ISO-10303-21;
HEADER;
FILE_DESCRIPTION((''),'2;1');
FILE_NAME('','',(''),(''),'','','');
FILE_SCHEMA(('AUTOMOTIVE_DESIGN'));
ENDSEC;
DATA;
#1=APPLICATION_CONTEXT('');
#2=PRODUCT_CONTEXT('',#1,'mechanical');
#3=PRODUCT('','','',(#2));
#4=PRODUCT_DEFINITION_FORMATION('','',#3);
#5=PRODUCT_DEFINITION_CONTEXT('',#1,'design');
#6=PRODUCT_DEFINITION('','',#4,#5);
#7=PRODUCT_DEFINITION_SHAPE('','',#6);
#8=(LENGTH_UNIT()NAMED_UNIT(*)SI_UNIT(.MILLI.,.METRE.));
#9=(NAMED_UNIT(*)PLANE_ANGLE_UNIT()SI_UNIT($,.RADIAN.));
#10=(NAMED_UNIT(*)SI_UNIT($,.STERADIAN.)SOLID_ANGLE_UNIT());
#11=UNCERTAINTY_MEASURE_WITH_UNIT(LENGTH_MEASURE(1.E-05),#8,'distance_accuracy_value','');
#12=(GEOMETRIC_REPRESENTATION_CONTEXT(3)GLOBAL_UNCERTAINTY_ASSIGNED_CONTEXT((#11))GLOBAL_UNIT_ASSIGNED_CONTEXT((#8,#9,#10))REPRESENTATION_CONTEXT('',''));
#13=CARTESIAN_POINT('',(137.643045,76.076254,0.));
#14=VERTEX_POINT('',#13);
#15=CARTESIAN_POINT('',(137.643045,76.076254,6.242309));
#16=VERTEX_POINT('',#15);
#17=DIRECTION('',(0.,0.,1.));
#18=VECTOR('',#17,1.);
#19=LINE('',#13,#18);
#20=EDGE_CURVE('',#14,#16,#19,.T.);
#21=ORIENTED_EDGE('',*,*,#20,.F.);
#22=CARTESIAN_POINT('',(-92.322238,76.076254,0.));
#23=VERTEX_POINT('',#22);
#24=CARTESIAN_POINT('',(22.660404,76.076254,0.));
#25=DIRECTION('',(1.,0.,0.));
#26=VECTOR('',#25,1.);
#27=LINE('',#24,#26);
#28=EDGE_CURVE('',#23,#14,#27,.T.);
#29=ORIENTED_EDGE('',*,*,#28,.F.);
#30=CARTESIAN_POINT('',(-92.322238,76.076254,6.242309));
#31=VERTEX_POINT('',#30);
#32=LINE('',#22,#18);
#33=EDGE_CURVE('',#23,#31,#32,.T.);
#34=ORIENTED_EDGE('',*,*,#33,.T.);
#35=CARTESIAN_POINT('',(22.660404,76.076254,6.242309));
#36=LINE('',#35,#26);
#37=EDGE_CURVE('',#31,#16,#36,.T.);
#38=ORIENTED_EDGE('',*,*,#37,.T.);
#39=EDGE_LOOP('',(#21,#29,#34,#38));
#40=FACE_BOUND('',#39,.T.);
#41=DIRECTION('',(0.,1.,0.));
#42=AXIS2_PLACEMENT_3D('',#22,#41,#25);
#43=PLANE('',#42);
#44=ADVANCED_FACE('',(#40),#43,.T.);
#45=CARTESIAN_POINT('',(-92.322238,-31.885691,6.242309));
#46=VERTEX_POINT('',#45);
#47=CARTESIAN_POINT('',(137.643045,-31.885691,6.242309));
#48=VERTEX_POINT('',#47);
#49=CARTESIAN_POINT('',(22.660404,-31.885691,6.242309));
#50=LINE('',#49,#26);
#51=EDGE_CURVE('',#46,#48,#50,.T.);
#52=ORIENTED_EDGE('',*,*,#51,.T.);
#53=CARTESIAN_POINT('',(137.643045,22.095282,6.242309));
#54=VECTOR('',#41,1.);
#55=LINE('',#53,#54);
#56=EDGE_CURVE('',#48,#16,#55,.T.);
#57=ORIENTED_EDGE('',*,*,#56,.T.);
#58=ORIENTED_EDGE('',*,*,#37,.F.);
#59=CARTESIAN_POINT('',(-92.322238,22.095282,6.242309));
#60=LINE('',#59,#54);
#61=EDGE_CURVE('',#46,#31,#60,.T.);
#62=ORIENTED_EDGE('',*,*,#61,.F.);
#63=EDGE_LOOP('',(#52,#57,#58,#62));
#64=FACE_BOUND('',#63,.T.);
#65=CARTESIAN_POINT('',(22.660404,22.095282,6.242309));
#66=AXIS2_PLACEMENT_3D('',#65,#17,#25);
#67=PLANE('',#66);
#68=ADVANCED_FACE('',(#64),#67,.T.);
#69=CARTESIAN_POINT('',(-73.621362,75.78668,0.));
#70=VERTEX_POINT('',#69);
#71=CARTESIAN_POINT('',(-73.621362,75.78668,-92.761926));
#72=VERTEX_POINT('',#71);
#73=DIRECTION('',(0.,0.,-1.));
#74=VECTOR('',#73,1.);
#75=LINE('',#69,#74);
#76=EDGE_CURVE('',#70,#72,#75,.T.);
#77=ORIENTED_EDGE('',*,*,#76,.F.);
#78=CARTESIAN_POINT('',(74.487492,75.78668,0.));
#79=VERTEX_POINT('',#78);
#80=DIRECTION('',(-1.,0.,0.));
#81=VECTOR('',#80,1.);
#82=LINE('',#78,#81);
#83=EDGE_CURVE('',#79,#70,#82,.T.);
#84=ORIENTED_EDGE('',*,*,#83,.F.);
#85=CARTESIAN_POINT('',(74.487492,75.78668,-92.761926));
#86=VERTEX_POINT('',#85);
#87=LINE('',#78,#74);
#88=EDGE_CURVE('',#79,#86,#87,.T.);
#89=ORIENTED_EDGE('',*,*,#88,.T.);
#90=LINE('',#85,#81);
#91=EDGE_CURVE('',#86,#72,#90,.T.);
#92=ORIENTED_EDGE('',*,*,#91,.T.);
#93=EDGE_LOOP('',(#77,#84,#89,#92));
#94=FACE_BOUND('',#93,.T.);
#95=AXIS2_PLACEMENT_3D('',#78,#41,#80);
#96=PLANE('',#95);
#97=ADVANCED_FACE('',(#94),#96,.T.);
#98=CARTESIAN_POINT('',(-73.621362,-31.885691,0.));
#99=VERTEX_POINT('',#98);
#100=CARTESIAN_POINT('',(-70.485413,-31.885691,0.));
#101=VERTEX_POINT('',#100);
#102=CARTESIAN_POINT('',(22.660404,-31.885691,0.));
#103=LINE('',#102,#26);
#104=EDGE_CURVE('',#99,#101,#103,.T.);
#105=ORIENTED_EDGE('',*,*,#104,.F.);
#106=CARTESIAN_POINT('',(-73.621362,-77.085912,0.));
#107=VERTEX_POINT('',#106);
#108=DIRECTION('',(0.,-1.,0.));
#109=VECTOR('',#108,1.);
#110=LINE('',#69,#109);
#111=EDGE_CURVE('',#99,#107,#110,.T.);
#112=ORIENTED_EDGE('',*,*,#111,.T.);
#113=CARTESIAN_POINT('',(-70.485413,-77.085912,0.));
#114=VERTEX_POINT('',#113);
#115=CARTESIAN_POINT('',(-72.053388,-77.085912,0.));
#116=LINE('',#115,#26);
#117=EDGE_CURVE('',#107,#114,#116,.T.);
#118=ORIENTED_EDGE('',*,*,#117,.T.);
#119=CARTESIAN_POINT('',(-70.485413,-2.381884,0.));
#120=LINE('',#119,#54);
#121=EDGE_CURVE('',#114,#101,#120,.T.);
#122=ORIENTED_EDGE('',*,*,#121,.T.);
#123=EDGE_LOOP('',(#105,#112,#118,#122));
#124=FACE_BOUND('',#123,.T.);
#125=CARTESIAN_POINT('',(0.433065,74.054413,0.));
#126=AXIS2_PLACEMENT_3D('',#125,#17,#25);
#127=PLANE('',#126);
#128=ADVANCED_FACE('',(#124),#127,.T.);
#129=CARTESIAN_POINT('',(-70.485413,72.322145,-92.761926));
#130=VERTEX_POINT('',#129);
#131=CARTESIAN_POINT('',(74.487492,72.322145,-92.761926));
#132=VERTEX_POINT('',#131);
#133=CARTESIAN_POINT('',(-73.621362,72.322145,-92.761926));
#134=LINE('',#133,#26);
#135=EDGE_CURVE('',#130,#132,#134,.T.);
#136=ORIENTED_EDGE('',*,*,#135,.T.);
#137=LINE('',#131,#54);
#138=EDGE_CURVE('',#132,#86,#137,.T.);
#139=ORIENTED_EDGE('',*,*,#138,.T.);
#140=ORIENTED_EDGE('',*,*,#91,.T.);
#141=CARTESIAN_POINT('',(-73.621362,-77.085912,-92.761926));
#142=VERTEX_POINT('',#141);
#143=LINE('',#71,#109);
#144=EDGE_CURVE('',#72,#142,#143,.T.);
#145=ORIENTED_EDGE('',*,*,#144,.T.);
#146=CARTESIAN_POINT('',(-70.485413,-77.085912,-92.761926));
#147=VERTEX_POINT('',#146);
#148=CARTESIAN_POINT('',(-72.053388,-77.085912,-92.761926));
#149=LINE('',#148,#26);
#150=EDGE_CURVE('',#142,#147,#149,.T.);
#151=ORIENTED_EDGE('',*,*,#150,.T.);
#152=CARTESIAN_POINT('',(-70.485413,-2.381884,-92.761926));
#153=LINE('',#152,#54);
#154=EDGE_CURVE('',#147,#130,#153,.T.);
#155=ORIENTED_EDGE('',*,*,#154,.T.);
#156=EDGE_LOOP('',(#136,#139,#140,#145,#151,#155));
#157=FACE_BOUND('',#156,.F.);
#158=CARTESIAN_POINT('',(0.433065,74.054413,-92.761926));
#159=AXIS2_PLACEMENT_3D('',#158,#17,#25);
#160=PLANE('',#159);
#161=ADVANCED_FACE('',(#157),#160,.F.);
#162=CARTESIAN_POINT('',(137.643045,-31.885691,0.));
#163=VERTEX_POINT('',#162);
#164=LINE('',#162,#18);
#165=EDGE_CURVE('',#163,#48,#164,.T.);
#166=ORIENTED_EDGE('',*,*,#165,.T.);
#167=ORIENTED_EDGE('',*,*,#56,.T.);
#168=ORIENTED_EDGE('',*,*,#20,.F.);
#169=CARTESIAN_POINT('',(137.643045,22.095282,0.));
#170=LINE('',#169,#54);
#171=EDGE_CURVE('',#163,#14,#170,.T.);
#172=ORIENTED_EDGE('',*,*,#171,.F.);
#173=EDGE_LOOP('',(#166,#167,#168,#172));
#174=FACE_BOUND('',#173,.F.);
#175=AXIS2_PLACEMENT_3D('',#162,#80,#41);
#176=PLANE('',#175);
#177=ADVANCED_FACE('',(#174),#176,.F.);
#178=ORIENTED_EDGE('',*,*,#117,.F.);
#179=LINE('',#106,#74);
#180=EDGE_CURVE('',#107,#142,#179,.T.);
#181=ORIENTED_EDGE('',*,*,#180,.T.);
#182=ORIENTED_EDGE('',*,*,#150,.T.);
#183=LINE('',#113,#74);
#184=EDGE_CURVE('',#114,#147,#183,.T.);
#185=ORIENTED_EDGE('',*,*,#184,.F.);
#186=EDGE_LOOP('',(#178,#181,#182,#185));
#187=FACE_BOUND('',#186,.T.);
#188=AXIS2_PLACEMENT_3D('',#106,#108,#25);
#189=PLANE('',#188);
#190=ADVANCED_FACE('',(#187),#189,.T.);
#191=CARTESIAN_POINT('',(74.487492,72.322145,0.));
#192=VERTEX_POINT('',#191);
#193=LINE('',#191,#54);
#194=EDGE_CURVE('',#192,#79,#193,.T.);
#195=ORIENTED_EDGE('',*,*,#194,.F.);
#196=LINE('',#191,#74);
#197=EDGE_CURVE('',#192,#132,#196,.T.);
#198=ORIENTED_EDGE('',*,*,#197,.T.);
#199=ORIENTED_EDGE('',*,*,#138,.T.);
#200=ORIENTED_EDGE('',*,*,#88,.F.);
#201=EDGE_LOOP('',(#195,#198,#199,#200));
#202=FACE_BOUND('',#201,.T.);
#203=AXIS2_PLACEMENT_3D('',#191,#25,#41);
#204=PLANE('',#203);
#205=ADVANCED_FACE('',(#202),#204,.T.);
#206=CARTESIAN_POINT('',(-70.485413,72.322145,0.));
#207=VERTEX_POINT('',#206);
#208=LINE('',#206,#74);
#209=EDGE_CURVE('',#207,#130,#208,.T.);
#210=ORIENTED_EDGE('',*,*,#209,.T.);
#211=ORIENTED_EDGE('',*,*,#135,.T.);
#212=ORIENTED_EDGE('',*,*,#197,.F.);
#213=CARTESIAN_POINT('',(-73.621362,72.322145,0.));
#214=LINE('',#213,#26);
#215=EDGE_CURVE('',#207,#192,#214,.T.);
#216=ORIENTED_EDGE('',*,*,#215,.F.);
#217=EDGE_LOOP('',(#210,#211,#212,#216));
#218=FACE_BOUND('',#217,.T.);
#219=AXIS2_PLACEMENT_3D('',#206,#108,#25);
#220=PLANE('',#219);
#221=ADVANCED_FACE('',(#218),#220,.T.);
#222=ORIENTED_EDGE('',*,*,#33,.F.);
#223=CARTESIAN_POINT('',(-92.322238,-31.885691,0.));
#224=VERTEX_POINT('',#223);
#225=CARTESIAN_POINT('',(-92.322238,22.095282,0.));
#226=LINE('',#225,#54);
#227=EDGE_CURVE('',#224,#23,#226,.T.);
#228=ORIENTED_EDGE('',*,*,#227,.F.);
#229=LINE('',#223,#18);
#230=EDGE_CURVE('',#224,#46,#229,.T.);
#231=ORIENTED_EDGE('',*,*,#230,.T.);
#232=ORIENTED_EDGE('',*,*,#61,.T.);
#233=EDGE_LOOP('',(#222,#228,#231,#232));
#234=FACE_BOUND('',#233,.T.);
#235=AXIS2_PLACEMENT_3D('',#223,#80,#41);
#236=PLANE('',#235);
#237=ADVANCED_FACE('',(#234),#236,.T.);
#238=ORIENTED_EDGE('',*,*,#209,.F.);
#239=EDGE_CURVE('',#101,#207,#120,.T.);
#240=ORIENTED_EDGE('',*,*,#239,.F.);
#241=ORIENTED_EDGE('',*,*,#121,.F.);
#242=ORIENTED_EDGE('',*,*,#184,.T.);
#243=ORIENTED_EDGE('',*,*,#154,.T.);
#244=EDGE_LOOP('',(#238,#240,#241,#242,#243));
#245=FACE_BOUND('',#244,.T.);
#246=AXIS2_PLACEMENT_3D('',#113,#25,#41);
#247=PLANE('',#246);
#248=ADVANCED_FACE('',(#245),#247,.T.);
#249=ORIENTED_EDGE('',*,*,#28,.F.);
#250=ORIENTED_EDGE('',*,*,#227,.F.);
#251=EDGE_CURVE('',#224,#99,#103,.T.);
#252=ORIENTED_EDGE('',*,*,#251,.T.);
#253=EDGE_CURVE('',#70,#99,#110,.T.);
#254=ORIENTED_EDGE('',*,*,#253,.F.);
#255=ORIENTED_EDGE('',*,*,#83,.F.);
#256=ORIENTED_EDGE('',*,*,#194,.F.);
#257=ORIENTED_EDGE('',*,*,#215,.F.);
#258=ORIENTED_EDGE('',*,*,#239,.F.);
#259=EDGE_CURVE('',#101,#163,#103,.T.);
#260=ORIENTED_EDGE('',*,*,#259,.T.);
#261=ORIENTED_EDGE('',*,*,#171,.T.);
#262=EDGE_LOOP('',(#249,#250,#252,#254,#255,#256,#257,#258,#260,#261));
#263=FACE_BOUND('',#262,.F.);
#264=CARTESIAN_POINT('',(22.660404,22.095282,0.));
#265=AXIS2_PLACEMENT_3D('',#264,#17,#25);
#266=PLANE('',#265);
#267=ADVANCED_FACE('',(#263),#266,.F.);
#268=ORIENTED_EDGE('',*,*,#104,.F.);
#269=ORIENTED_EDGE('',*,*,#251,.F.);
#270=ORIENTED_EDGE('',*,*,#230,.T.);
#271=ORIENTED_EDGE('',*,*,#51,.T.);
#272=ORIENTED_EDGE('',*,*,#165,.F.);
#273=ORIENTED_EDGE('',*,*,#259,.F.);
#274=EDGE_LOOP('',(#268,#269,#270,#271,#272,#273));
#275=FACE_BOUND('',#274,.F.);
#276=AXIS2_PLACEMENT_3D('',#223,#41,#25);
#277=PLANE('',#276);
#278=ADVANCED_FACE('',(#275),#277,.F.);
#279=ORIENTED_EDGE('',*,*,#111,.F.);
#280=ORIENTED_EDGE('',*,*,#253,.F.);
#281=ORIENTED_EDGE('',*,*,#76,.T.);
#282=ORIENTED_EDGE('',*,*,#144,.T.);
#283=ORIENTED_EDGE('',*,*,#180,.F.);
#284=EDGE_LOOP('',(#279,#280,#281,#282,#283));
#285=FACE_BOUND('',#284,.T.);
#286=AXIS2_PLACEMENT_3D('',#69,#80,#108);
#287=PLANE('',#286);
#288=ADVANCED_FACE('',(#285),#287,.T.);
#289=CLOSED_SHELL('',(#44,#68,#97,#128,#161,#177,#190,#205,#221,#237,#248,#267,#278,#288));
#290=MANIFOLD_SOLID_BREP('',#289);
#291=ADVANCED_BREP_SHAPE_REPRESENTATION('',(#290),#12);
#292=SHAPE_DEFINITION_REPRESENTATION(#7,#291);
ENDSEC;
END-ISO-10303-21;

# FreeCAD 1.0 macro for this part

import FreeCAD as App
import Part
import Sketcher


def add_polygon(sketch, points):
    """Adds a closed chain of lines whose ends are joined by coincident constraints."""
    first, n = sketch.GeometryCount, len(points)
    for a, b in zip(points, points[1:] + points[:1]):
        sketch.addGeometry(Part.LineSegment(App.Vector(*a, 0), App.Vector(*b, 0)), False)
    for i in range(n):
        sketch.addConstraint(Sketcher.Constraint("Coincident", first + i, 2, first + (i + 1) % n, 1))

doc = App.newDocument("Part")
params = doc.addObject("Spreadsheet::Sheet", "Params")
for row, (alias, value) in enumerate([
    ("pad1_length", "92.761926 mm"),
    ("pad2_length", "6.242309 mm"),
], start=1):
    params.set(f"A{row}", alias)
    params.set(f"B{row}", "=" + value)
    params.setAlias(f"B{row}", alias)

body = doc.addObject("PartDesign::Body", "Body")

# Sketch on XY plane
sketch1 = body.newObject("Sketcher::SketchObject", "Sketch")
sketch1.AttachmentSupport = (doc.getObject("XY_Plane"), [""])
sketch1.MapMode = "FlatFace"
add_polygon(sketch1, [(-73.621362, 75.78668), (-73.621362, -77.085912), (-70.485413, -77.085912), (-70.485413, 72.322145), (74.487492, 72.322145), (74.487492, 75.78668)])  # lines 0-5
sketch1.addConstraint([
    Sketcher.Constraint("Vertical", 0),
    Sketcher.Constraint("Horizontal", 1),
    Sketcher.Constraint("Vertical", 2),
    Sketcher.Constraint("Horizontal", 3),
    Sketcher.Constraint("Vertical", 4),
    Sketcher.Constraint("Horizontal", 5),
    Sketcher.Constraint("DistanceX", 1, 1, 1, 2, 3.135949),
    Sketcher.Constraint("DistanceX", 3, 1, 3, 2, 144.972906),
    Sketcher.Constraint("DistanceY", 0, 2, 0, 1, 152.872592),
    Sketcher.Constraint("DistanceY", 2, 1, 2, 2, 149.408057),
    Sketcher.Constraint("DistanceY", -1, 1, 4, 2, 75.78668),
    Sketcher.Constraint("DistanceX", 0, 2, -1, 1, 73.621362),
])
pad1 = body.newObject("PartDesign::Pad", "Pad")
pad1.Profile = sketch1
pad1.setExpression("Length", "Params.pad1_length")
pad1.Reversed = True

# Sketch on XY plane
sketch2 = body.newObject("Sketcher::SketchObject", "Sketch001")
sketch2.AttachmentSupport = (doc.getObject("XY_Plane"), [""])
sketch2.MapMode = "FlatFace"
add_polygon(sketch2, [(-92.322238, 76.076254), (-92.322238, -31.885691), (137.643045, -31.885691), (137.643045, 76.076254)])  # lines 0-3
sketch2.addConstraint([
    Sketcher.Constraint("Vertical", 0),
    Sketcher.Constraint("Horizontal", 1),
    Sketcher.Constraint("Vertical", 2),
    Sketcher.Constraint("Horizontal", 3),
    Sketcher.Constraint("DistanceX", 1, 1, 1, 2, 229.965283),
    Sketcher.Constraint("DistanceY", 0, 2, 0, 1, 107.961945),
    Sketcher.Constraint("DistanceY", 0, 2, -1, 1, 31.885691),
    Sketcher.Constraint("DistanceX", 0, 2, -1, 1, 92.322238),
])
pad2 = body.newObject("PartDesign::Pad", "Pad001")
pad2.Profile = sketch2
pad2.setExpression("Length", "Params.pad2_length")

doc.recompute()
